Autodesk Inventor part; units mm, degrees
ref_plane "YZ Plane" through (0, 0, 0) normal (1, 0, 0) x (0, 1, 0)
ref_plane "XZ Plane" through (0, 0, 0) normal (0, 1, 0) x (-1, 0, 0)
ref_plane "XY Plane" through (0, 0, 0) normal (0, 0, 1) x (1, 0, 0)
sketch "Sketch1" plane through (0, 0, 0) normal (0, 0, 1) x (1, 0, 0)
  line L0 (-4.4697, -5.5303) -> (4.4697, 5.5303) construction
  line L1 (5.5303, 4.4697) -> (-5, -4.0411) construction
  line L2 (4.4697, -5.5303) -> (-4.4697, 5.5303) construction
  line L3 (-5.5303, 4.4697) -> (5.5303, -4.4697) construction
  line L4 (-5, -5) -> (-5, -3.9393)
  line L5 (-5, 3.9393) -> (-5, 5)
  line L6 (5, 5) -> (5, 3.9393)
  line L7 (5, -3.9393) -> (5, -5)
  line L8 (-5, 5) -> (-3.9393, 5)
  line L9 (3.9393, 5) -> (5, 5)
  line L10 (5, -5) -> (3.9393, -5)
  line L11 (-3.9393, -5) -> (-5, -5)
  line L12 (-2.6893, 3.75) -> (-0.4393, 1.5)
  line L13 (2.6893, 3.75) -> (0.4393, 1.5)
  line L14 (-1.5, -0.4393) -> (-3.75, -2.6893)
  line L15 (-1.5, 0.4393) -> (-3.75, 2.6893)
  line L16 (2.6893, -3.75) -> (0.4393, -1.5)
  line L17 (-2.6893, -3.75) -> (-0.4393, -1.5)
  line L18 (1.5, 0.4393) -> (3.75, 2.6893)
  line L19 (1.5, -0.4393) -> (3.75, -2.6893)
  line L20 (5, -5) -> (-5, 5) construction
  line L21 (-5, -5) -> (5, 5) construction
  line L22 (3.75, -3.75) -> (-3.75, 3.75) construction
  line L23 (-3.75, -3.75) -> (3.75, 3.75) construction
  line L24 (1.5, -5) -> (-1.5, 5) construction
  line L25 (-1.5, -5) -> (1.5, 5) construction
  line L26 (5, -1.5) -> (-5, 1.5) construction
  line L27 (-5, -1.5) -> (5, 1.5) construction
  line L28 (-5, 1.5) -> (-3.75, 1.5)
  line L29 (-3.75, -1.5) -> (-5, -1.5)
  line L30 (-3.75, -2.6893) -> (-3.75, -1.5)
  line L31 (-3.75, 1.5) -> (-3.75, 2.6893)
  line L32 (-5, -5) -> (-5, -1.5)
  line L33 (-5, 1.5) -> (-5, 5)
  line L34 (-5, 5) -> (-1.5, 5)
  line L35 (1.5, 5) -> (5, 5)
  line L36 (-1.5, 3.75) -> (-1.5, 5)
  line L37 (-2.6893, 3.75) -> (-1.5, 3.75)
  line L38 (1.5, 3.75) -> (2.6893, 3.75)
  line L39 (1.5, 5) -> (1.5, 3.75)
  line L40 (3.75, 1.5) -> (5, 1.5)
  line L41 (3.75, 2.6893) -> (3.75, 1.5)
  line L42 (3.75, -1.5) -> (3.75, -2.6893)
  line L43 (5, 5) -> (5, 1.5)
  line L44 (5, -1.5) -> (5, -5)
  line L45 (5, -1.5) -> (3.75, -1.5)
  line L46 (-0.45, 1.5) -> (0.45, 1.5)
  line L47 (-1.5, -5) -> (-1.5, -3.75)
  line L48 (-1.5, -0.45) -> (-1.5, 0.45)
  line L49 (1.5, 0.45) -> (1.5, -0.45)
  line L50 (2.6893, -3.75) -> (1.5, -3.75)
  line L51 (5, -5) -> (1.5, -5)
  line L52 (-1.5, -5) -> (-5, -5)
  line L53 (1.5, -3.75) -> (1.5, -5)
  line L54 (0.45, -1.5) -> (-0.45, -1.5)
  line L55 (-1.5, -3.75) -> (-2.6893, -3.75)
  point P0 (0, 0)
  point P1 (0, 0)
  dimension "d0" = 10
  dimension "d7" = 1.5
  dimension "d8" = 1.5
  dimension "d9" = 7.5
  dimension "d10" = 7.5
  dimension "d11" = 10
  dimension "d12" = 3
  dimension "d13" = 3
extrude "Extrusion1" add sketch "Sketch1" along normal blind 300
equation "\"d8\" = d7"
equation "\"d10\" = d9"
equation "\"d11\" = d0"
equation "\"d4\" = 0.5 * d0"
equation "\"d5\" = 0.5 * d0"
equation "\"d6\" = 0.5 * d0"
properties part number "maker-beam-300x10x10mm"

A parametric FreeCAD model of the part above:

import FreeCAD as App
import Part
import Sketcher

V = App.Vector
Q = App.Units.Quantity

doc = App.newDocument("Part")
params = doc.addObject("Spreadsheet::Sheet", "Params")
for row, (alias, value) in enumerate([
    ("sketch1_width", "3.5 mm"),
    ("sketch1_width2", "1.25 mm"),
    ("pad1_length", "300 mm"),
], start=1):
    params.set(f"A{row}", alias)
    params.set(f"B{row}", "=" + value)
    params.setAlias(f"B{row}", alias)

body = doc.addObject("PartDesign::Body", "Body")

# Sketch on XY plane
sketch1 = body.newObject("Sketcher::SketchObject", "Sketch")
sketch1.AttachmentSupport = (doc.getObject("XY_Plane"), [""])
sketch1.MapMode = "FlatFace"
sketch1.addGeometry(Part.LineSegment(V(-5, -1.5, 0), V(-5, -5, 0)), False)
sketch1.addGeometry(Part.LineSegment(V(-5, -5, 0), V(-1.5, -5, 0)), False)
sketch1.addGeometry(Part.LineSegment(V(-1.5, -5, 0), V(-1.5, -3.8, 0)), False)
sketch1.addGeometry(Part.LineSegment(V(-1.5, -3.8, 0), V(-2.7, -3.8, 0)), False)
sketch1.addGeometry(Part.LineSegment(V(-2.7, -3.8, 0), V(-0.4, -1.5, 0)), False)
sketch1.addGeometry(Part.LineSegment(V(-0.4, -1.5, 0), V(0.4, -1.5, 0)), False)
sketch1.addGeometry(Part.LineSegment(V(0.4, -1.5, 0), V(2.7, -3.8, 0)), False)
sketch1.addGeometry(Part.LineSegment(V(2.7, -3.8, 0), V(1.5, -3.8, 0)), False)
sketch1.addGeometry(Part.LineSegment(V(1.5, -3.8, 0), V(1.5, -5, 0)), False)
sketch1.addGeometry(Part.LineSegment(V(1.5, -5, 0), V(5, -5, 0)), False)
sketch1.addGeometry(Part.LineSegment(V(5, -5, 0), V(5, -1.5, 0)), False)
sketch1.addGeometry(Part.LineSegment(V(5, -1.5, 0), V(3.8, -1.5, 0)), False)
sketch1.addGeometry(Part.LineSegment(V(3.8, -1.5, 0), V(3.8, -2.7, 0)), False)
sketch1.addGeometry(Part.LineSegment(V(3.8, -2.7, 0), V(1.5, -0.4, 0)), False)
sketch1.addGeometry(Part.LineSegment(V(1.5, -0.4, 0), V(1.5, 0.4, 0)), False)
sketch1.addGeometry(Part.LineSegment(V(1.5, 0.4, 0), V(3.8, 2.7, 0)), False)
sketch1.addGeometry(Part.LineSegment(V(3.8, 2.7, 0), V(3.8, 1.5, 0)), False)
sketch1.addGeometry(Part.LineSegment(V(3.8, 1.5, 0), V(5, 1.5, 0)), False)
sketch1.addGeometry(Part.LineSegment(V(5, 1.5, 0), V(5, 5, 0)), False)
sketch1.addGeometry(Part.LineSegment(V(5, 5, 0), V(1.5, 5, 0)), False)
sketch1.addGeometry(Part.LineSegment(V(1.5, 5, 0), V(1.5, 3.8, 0)), False)
sketch1.addGeometry(Part.LineSegment(V(1.5, 3.8, 0), V(2.7, 3.8, 0)), False)
sketch1.addGeometry(Part.LineSegment(V(2.7, 3.8, 0), V(0.4, 1.5, 0)), False)
sketch1.addGeometry(Part.LineSegment(V(0.4, 1.5, 0), V(-0.4, 1.5, 0)), False)
sketch1.addGeometry(Part.LineSegment(V(-0.4, 1.5, 0), V(-2.7, 3.8, 0)), False)
sketch1.addGeometry(Part.LineSegment(V(-2.7, 3.8, 0), V(-1.5, 3.8, 0)), False)
sketch1.addGeometry(Part.LineSegment(V(-1.5, 3.8, 0), V(-1.5, 5, 0)), False)
sketch1.addGeometry(Part.LineSegment(V(-1.5, 5, 0), V(-5, 5, 0)), False)
sketch1.addGeometry(Part.LineSegment(V(-5, 5, 0), V(-5, 1.5, 0)), False)
sketch1.addGeometry(Part.LineSegment(V(-5, 1.5, 0), V(-3.8, 1.5, 0)), False)
sketch1.addGeometry(Part.LineSegment(V(-3.8, 1.5, 0), V(-3.8, 2.7, 0)), False)
sketch1.addGeometry(Part.LineSegment(V(-3.8, 2.7, 0), V(-1.5, 0.4, 0)), False)
sketch1.addGeometry(Part.LineSegment(V(-1.5, 0.4, 0), V(-1.5, -0.4, 0)), False)
sketch1.addGeometry(Part.LineSegment(V(-1.5, -0.4, 0), V(-3.8, -2.7, 0)), False)
sketch1.addGeometry(Part.LineSegment(V(-3.8, -2.7, 0), V(-3.8, -1.5, 0)), False)
sketch1.addGeometry(Part.LineSegment(V(-3.8, -1.5, 0), V(-5, -1.5, 0)), False)
sketch1.addConstraint(Sketcher.Constraint("Coincident", 0, 2, 1, 1))
sketch1.addConstraint(Sketcher.Constraint("Coincident", 1, 2, 2, 1))
sketch1.addConstraint(Sketcher.Constraint("Coincident", 2, 2, 3, 1))
sketch1.addConstraint(Sketcher.Constraint("Coincident", 3, 2, 4, 1))
sketch1.addConstraint(Sketcher.Constraint("Coincident", 4, 2, 5, 1))
sketch1.addConstraint(Sketcher.Constraint("Coincident", 5, 2, 6, 1))
sketch1.addConstraint(Sketcher.Constraint("Coincident", 6, 2, 7, 1))
sketch1.addConstraint(Sketcher.Constraint("Coincident", 7, 2, 8, 1))
sketch1.addConstraint(Sketcher.Constraint("Coincident", 8, 2, 9, 1))
sketch1.addConstraint(Sketcher.Constraint("Coincident", 9, 2, 10, 1))
sketch1.addConstraint(Sketcher.Constraint("Coincident", 10, 2, 11, 1))
sketch1.addConstraint(Sketcher.Constraint("Coincident", 11, 2, 12, 1))
sketch1.addConstraint(Sketcher.Constraint("Coincident", 12, 2, 13, 1))
sketch1.addConstraint(Sketcher.Constraint("Coincident", 13, 2, 14, 1))
sketch1.addConstraint(Sketcher.Constraint("Coincident", 14, 2, 15, 1))
sketch1.addConstraint(Sketcher.Constraint("Coincident", 15, 2, 16, 1))
sketch1.addConstraint(Sketcher.Constraint("Coincident", 16, 2, 17, 1))
sketch1.addConstraint(Sketcher.Constraint("Coincident", 17, 2, 18, 1))
sketch1.addConstraint(Sketcher.Constraint("Coincident", 18, 2, 19, 1))
sketch1.addConstraint(Sketcher.Constraint("Coincident", 19, 2, 20, 1))
sketch1.addConstraint(Sketcher.Constraint("Coincident", 20, 2, 21, 1))
sketch1.addConstraint(Sketcher.Constraint("Coincident", 21, 2, 22, 1))
sketch1.addConstraint(Sketcher.Constraint("Coincident", 22, 2, 23, 1))
sketch1.addConstraint(Sketcher.Constraint("Coincident", 23, 2, 24, 1))
sketch1.addConstraint(Sketcher.Constraint("Coincident", 24, 2, 25, 1))
sketch1.addConstraint(Sketcher.Constraint("Coincident", 25, 2, 26, 1))
sketch1.addConstraint(Sketcher.Constraint("Coincident", 26, 2, 27, 1))
sketch1.addConstraint(Sketcher.Constraint("Coincident", 27, 2, 28, 1))
sketch1.addConstraint(Sketcher.Constraint("Coincident", 28, 2, 29, 1))
sketch1.addConstraint(Sketcher.Constraint("Coincident", 29, 2, 30, 1))
sketch1.addConstraint(Sketcher.Constraint("Coincident", 30, 2, 31, 1))
sketch1.addConstraint(Sketcher.Constraint("Coincident", 31, 2, 32, 1))
sketch1.addConstraint(Sketcher.Constraint("Coincident", 32, 2, 33, 1))
sketch1.addConstraint(Sketcher.Constraint("Coincident", 33, 2, 34, 1))
sketch1.addConstraint(Sketcher.Constraint("Coincident", 34, 2, 35, 1))
sketch1.addConstraint(Sketcher.Constraint("Coincident", 35, 2, 0, 1))
sketch1.addConstraint(Sketcher.Constraint("Vertical", 0))
sketch1.addConstraint(Sketcher.Constraint("Horizontal", 1))
sketch1.addConstraint(Sketcher.Constraint("Vertical", 2))
sketch1.addConstraint(Sketcher.Constraint("Horizontal", 3))
sketch1.addConstraint(Sketcher.Constraint("Horizontal", 5))
sketch1.addConstraint(Sketcher.Constraint("Horizontal", 7))
sketch1.addConstraint(Sketcher.Constraint("Vertical", 8))
sketch1.addConstraint(Sketcher.Constraint("Horizontal", 9))
sketch1.addConstraint(Sketcher.Constraint("Vertical", 10))
sketch1.addConstraint(Sketcher.Constraint("Horizontal", 11))
sketch1.addConstraint(Sketcher.Constraint("Vertical", 12))
sketch1.addConstraint(Sketcher.Constraint("Vertical", 14))
sketch1.addConstraint(Sketcher.Constraint("Vertical", 16))
sketch1.addConstraint(Sketcher.Constraint("Horizontal", 17))
sketch1.addConstraint(Sketcher.Constraint("Vertical", 18))
sketch1.addConstraint(Sketcher.Constraint("Horizontal", 19))
sketch1.addConstraint(Sketcher.Constraint("Vertical", 20))
sketch1.addConstraint(Sketcher.Constraint("Horizontal", 21))
sketch1.addConstraint(Sketcher.Constraint("Horizontal", 23))
sketch1.addConstraint(Sketcher.Constraint("Horizontal", 25))
sketch1.addConstraint(Sketcher.Constraint("Vertical", 26))
sketch1.addConstraint(Sketcher.Constraint("Horizontal", 27))
sketch1.addConstraint(Sketcher.Constraint("Vertical", 28))
sketch1.addConstraint(Sketcher.Constraint("Horizontal", 29))
sketch1.addConstraint(Sketcher.Constraint("Vertical", 30))
sketch1.addConstraint(Sketcher.Constraint("Vertical", 32))
sketch1.addConstraint(Sketcher.Constraint("Vertical", 34))
sketch1.addConstraint(Sketcher.Constraint("Horizontal", 35))
sketch1.addConstraint(Sketcher.Constraint("Symmetric", 0, 2, 18, 2, -1, 1))
sketch1.addConstraint(Sketcher.Constraint("Symmetric", 2, 2, 20, 2, -1, 1))
sketch1.addConstraint(Sketcher.Constraint("Symmetric", 4, 2, 22, 2, -1, 1))
sketch1.addConstraint(Sketcher.Constraint("Symmetric", 6, 2, 24, 2, -1, 1))
sketch1.addConstraint(Sketcher.Constraint("Symmetric", 8, 2, 26, 2, -1, 1))
sketch1.addConstraint(Sketcher.Constraint("Symmetric", 10, 2, 28, 2, -1, 1))
sketch1.addConstraint(Sketcher.Constraint("Symmetric", 12, 2, 30, 2, -1, 1))
sketch1.addConstraint(Sketcher.Constraint("Symmetric", 13, 2, 31, 2, -1, 1))
sketch1.addConstraint(Sketcher.Constraint("Symmetric", 15, 2, 33, 2, -1, 1))
sketch1.addConstraint(Sketcher.Constraint("Symmetric", 3, 2, 6, 2, -2))
sketch1.addConstraint(Sketcher.Constraint("Symmetric", 1, 2, 8, 2, -2))
sketch1.addConstraint(Sketcher.Constraint("Symmetric", 17, 2, 28, 2, -2))
sketch1.addConstraint(Sketcher.Constraint("Symmetric", 15, 2, 30, 2, -2))
sketch1.addConstraint(Sketcher.Constraint("Perpendicular", 4, 6))
sketch1.addConstraint(Sketcher.Constraint("Parallel", 6, 13))
sketch1.addConstraint(Sketcher.Constraint("Perpendicular", 13, 15))
sketch1.addConstraint(Sketcher.Constraint("Parallel", 15, 22))
sketch1.addConstraint(Sketcher.Constraint("Perpendicular", 22, 24))
sketch1.addConstraint(Sketcher.Constraint("Perpendicular", 31, 33))
sketch1.addConstraint(Sketcher.Constraint("Horizontal", 5, 2, 10, 2))
sketch1.addConstraint(Sketcher.Constraint("Horizontal", 14, 2, 31, 2))
sketch1.addConstraint(Sketcher.Constraint("Horizontal", 11, 2, 34, 2))
sketch1.addConstraint(Sketcher.Constraint("Vertical", 8, 2, 13, 2))
sketch1.addConstraint(Sketcher.Constraint("Equal", 27, 0))
sketch1.addConstraint(Sketcher.Constraint("Equal", 35, 2))
sketch1.addConstraint(Sketcher.Constraint("Equal", 25, 12))
sketch1.addConstraint(Sketcher.Constraint("Equal", 23, 14))
sketch1.addConstraint(Sketcher.Constraint("DistanceX", 2, 2, 7, 2, Q("3 mm")))
sketch1.addConstraint(Sketcher.Constraint("DistanceX", 1, 1, 1, 2, Q("3.5 mm")))
sketch1.addConstraint(Sketcher.Constraint("DistanceX", 11, 2, 11, 1, Q("1.25 mm")))
sketch1.addConstraint(Sketcher.Constraint("DistanceX", 3, 2, 3, 1, Q("1.1893 mm")))
sketch1.setExpression("Constraints[92]", "Params.sketch1_width")
sketch1.setExpression("Constraints[93]", "Params.sketch1_width2")
pad1 = body.newObject("PartDesign::Pad", "Pad")
pad1.Profile = sketch1
pad1.setExpression("Length", "Params.pad1_length")

doc.recompute()
